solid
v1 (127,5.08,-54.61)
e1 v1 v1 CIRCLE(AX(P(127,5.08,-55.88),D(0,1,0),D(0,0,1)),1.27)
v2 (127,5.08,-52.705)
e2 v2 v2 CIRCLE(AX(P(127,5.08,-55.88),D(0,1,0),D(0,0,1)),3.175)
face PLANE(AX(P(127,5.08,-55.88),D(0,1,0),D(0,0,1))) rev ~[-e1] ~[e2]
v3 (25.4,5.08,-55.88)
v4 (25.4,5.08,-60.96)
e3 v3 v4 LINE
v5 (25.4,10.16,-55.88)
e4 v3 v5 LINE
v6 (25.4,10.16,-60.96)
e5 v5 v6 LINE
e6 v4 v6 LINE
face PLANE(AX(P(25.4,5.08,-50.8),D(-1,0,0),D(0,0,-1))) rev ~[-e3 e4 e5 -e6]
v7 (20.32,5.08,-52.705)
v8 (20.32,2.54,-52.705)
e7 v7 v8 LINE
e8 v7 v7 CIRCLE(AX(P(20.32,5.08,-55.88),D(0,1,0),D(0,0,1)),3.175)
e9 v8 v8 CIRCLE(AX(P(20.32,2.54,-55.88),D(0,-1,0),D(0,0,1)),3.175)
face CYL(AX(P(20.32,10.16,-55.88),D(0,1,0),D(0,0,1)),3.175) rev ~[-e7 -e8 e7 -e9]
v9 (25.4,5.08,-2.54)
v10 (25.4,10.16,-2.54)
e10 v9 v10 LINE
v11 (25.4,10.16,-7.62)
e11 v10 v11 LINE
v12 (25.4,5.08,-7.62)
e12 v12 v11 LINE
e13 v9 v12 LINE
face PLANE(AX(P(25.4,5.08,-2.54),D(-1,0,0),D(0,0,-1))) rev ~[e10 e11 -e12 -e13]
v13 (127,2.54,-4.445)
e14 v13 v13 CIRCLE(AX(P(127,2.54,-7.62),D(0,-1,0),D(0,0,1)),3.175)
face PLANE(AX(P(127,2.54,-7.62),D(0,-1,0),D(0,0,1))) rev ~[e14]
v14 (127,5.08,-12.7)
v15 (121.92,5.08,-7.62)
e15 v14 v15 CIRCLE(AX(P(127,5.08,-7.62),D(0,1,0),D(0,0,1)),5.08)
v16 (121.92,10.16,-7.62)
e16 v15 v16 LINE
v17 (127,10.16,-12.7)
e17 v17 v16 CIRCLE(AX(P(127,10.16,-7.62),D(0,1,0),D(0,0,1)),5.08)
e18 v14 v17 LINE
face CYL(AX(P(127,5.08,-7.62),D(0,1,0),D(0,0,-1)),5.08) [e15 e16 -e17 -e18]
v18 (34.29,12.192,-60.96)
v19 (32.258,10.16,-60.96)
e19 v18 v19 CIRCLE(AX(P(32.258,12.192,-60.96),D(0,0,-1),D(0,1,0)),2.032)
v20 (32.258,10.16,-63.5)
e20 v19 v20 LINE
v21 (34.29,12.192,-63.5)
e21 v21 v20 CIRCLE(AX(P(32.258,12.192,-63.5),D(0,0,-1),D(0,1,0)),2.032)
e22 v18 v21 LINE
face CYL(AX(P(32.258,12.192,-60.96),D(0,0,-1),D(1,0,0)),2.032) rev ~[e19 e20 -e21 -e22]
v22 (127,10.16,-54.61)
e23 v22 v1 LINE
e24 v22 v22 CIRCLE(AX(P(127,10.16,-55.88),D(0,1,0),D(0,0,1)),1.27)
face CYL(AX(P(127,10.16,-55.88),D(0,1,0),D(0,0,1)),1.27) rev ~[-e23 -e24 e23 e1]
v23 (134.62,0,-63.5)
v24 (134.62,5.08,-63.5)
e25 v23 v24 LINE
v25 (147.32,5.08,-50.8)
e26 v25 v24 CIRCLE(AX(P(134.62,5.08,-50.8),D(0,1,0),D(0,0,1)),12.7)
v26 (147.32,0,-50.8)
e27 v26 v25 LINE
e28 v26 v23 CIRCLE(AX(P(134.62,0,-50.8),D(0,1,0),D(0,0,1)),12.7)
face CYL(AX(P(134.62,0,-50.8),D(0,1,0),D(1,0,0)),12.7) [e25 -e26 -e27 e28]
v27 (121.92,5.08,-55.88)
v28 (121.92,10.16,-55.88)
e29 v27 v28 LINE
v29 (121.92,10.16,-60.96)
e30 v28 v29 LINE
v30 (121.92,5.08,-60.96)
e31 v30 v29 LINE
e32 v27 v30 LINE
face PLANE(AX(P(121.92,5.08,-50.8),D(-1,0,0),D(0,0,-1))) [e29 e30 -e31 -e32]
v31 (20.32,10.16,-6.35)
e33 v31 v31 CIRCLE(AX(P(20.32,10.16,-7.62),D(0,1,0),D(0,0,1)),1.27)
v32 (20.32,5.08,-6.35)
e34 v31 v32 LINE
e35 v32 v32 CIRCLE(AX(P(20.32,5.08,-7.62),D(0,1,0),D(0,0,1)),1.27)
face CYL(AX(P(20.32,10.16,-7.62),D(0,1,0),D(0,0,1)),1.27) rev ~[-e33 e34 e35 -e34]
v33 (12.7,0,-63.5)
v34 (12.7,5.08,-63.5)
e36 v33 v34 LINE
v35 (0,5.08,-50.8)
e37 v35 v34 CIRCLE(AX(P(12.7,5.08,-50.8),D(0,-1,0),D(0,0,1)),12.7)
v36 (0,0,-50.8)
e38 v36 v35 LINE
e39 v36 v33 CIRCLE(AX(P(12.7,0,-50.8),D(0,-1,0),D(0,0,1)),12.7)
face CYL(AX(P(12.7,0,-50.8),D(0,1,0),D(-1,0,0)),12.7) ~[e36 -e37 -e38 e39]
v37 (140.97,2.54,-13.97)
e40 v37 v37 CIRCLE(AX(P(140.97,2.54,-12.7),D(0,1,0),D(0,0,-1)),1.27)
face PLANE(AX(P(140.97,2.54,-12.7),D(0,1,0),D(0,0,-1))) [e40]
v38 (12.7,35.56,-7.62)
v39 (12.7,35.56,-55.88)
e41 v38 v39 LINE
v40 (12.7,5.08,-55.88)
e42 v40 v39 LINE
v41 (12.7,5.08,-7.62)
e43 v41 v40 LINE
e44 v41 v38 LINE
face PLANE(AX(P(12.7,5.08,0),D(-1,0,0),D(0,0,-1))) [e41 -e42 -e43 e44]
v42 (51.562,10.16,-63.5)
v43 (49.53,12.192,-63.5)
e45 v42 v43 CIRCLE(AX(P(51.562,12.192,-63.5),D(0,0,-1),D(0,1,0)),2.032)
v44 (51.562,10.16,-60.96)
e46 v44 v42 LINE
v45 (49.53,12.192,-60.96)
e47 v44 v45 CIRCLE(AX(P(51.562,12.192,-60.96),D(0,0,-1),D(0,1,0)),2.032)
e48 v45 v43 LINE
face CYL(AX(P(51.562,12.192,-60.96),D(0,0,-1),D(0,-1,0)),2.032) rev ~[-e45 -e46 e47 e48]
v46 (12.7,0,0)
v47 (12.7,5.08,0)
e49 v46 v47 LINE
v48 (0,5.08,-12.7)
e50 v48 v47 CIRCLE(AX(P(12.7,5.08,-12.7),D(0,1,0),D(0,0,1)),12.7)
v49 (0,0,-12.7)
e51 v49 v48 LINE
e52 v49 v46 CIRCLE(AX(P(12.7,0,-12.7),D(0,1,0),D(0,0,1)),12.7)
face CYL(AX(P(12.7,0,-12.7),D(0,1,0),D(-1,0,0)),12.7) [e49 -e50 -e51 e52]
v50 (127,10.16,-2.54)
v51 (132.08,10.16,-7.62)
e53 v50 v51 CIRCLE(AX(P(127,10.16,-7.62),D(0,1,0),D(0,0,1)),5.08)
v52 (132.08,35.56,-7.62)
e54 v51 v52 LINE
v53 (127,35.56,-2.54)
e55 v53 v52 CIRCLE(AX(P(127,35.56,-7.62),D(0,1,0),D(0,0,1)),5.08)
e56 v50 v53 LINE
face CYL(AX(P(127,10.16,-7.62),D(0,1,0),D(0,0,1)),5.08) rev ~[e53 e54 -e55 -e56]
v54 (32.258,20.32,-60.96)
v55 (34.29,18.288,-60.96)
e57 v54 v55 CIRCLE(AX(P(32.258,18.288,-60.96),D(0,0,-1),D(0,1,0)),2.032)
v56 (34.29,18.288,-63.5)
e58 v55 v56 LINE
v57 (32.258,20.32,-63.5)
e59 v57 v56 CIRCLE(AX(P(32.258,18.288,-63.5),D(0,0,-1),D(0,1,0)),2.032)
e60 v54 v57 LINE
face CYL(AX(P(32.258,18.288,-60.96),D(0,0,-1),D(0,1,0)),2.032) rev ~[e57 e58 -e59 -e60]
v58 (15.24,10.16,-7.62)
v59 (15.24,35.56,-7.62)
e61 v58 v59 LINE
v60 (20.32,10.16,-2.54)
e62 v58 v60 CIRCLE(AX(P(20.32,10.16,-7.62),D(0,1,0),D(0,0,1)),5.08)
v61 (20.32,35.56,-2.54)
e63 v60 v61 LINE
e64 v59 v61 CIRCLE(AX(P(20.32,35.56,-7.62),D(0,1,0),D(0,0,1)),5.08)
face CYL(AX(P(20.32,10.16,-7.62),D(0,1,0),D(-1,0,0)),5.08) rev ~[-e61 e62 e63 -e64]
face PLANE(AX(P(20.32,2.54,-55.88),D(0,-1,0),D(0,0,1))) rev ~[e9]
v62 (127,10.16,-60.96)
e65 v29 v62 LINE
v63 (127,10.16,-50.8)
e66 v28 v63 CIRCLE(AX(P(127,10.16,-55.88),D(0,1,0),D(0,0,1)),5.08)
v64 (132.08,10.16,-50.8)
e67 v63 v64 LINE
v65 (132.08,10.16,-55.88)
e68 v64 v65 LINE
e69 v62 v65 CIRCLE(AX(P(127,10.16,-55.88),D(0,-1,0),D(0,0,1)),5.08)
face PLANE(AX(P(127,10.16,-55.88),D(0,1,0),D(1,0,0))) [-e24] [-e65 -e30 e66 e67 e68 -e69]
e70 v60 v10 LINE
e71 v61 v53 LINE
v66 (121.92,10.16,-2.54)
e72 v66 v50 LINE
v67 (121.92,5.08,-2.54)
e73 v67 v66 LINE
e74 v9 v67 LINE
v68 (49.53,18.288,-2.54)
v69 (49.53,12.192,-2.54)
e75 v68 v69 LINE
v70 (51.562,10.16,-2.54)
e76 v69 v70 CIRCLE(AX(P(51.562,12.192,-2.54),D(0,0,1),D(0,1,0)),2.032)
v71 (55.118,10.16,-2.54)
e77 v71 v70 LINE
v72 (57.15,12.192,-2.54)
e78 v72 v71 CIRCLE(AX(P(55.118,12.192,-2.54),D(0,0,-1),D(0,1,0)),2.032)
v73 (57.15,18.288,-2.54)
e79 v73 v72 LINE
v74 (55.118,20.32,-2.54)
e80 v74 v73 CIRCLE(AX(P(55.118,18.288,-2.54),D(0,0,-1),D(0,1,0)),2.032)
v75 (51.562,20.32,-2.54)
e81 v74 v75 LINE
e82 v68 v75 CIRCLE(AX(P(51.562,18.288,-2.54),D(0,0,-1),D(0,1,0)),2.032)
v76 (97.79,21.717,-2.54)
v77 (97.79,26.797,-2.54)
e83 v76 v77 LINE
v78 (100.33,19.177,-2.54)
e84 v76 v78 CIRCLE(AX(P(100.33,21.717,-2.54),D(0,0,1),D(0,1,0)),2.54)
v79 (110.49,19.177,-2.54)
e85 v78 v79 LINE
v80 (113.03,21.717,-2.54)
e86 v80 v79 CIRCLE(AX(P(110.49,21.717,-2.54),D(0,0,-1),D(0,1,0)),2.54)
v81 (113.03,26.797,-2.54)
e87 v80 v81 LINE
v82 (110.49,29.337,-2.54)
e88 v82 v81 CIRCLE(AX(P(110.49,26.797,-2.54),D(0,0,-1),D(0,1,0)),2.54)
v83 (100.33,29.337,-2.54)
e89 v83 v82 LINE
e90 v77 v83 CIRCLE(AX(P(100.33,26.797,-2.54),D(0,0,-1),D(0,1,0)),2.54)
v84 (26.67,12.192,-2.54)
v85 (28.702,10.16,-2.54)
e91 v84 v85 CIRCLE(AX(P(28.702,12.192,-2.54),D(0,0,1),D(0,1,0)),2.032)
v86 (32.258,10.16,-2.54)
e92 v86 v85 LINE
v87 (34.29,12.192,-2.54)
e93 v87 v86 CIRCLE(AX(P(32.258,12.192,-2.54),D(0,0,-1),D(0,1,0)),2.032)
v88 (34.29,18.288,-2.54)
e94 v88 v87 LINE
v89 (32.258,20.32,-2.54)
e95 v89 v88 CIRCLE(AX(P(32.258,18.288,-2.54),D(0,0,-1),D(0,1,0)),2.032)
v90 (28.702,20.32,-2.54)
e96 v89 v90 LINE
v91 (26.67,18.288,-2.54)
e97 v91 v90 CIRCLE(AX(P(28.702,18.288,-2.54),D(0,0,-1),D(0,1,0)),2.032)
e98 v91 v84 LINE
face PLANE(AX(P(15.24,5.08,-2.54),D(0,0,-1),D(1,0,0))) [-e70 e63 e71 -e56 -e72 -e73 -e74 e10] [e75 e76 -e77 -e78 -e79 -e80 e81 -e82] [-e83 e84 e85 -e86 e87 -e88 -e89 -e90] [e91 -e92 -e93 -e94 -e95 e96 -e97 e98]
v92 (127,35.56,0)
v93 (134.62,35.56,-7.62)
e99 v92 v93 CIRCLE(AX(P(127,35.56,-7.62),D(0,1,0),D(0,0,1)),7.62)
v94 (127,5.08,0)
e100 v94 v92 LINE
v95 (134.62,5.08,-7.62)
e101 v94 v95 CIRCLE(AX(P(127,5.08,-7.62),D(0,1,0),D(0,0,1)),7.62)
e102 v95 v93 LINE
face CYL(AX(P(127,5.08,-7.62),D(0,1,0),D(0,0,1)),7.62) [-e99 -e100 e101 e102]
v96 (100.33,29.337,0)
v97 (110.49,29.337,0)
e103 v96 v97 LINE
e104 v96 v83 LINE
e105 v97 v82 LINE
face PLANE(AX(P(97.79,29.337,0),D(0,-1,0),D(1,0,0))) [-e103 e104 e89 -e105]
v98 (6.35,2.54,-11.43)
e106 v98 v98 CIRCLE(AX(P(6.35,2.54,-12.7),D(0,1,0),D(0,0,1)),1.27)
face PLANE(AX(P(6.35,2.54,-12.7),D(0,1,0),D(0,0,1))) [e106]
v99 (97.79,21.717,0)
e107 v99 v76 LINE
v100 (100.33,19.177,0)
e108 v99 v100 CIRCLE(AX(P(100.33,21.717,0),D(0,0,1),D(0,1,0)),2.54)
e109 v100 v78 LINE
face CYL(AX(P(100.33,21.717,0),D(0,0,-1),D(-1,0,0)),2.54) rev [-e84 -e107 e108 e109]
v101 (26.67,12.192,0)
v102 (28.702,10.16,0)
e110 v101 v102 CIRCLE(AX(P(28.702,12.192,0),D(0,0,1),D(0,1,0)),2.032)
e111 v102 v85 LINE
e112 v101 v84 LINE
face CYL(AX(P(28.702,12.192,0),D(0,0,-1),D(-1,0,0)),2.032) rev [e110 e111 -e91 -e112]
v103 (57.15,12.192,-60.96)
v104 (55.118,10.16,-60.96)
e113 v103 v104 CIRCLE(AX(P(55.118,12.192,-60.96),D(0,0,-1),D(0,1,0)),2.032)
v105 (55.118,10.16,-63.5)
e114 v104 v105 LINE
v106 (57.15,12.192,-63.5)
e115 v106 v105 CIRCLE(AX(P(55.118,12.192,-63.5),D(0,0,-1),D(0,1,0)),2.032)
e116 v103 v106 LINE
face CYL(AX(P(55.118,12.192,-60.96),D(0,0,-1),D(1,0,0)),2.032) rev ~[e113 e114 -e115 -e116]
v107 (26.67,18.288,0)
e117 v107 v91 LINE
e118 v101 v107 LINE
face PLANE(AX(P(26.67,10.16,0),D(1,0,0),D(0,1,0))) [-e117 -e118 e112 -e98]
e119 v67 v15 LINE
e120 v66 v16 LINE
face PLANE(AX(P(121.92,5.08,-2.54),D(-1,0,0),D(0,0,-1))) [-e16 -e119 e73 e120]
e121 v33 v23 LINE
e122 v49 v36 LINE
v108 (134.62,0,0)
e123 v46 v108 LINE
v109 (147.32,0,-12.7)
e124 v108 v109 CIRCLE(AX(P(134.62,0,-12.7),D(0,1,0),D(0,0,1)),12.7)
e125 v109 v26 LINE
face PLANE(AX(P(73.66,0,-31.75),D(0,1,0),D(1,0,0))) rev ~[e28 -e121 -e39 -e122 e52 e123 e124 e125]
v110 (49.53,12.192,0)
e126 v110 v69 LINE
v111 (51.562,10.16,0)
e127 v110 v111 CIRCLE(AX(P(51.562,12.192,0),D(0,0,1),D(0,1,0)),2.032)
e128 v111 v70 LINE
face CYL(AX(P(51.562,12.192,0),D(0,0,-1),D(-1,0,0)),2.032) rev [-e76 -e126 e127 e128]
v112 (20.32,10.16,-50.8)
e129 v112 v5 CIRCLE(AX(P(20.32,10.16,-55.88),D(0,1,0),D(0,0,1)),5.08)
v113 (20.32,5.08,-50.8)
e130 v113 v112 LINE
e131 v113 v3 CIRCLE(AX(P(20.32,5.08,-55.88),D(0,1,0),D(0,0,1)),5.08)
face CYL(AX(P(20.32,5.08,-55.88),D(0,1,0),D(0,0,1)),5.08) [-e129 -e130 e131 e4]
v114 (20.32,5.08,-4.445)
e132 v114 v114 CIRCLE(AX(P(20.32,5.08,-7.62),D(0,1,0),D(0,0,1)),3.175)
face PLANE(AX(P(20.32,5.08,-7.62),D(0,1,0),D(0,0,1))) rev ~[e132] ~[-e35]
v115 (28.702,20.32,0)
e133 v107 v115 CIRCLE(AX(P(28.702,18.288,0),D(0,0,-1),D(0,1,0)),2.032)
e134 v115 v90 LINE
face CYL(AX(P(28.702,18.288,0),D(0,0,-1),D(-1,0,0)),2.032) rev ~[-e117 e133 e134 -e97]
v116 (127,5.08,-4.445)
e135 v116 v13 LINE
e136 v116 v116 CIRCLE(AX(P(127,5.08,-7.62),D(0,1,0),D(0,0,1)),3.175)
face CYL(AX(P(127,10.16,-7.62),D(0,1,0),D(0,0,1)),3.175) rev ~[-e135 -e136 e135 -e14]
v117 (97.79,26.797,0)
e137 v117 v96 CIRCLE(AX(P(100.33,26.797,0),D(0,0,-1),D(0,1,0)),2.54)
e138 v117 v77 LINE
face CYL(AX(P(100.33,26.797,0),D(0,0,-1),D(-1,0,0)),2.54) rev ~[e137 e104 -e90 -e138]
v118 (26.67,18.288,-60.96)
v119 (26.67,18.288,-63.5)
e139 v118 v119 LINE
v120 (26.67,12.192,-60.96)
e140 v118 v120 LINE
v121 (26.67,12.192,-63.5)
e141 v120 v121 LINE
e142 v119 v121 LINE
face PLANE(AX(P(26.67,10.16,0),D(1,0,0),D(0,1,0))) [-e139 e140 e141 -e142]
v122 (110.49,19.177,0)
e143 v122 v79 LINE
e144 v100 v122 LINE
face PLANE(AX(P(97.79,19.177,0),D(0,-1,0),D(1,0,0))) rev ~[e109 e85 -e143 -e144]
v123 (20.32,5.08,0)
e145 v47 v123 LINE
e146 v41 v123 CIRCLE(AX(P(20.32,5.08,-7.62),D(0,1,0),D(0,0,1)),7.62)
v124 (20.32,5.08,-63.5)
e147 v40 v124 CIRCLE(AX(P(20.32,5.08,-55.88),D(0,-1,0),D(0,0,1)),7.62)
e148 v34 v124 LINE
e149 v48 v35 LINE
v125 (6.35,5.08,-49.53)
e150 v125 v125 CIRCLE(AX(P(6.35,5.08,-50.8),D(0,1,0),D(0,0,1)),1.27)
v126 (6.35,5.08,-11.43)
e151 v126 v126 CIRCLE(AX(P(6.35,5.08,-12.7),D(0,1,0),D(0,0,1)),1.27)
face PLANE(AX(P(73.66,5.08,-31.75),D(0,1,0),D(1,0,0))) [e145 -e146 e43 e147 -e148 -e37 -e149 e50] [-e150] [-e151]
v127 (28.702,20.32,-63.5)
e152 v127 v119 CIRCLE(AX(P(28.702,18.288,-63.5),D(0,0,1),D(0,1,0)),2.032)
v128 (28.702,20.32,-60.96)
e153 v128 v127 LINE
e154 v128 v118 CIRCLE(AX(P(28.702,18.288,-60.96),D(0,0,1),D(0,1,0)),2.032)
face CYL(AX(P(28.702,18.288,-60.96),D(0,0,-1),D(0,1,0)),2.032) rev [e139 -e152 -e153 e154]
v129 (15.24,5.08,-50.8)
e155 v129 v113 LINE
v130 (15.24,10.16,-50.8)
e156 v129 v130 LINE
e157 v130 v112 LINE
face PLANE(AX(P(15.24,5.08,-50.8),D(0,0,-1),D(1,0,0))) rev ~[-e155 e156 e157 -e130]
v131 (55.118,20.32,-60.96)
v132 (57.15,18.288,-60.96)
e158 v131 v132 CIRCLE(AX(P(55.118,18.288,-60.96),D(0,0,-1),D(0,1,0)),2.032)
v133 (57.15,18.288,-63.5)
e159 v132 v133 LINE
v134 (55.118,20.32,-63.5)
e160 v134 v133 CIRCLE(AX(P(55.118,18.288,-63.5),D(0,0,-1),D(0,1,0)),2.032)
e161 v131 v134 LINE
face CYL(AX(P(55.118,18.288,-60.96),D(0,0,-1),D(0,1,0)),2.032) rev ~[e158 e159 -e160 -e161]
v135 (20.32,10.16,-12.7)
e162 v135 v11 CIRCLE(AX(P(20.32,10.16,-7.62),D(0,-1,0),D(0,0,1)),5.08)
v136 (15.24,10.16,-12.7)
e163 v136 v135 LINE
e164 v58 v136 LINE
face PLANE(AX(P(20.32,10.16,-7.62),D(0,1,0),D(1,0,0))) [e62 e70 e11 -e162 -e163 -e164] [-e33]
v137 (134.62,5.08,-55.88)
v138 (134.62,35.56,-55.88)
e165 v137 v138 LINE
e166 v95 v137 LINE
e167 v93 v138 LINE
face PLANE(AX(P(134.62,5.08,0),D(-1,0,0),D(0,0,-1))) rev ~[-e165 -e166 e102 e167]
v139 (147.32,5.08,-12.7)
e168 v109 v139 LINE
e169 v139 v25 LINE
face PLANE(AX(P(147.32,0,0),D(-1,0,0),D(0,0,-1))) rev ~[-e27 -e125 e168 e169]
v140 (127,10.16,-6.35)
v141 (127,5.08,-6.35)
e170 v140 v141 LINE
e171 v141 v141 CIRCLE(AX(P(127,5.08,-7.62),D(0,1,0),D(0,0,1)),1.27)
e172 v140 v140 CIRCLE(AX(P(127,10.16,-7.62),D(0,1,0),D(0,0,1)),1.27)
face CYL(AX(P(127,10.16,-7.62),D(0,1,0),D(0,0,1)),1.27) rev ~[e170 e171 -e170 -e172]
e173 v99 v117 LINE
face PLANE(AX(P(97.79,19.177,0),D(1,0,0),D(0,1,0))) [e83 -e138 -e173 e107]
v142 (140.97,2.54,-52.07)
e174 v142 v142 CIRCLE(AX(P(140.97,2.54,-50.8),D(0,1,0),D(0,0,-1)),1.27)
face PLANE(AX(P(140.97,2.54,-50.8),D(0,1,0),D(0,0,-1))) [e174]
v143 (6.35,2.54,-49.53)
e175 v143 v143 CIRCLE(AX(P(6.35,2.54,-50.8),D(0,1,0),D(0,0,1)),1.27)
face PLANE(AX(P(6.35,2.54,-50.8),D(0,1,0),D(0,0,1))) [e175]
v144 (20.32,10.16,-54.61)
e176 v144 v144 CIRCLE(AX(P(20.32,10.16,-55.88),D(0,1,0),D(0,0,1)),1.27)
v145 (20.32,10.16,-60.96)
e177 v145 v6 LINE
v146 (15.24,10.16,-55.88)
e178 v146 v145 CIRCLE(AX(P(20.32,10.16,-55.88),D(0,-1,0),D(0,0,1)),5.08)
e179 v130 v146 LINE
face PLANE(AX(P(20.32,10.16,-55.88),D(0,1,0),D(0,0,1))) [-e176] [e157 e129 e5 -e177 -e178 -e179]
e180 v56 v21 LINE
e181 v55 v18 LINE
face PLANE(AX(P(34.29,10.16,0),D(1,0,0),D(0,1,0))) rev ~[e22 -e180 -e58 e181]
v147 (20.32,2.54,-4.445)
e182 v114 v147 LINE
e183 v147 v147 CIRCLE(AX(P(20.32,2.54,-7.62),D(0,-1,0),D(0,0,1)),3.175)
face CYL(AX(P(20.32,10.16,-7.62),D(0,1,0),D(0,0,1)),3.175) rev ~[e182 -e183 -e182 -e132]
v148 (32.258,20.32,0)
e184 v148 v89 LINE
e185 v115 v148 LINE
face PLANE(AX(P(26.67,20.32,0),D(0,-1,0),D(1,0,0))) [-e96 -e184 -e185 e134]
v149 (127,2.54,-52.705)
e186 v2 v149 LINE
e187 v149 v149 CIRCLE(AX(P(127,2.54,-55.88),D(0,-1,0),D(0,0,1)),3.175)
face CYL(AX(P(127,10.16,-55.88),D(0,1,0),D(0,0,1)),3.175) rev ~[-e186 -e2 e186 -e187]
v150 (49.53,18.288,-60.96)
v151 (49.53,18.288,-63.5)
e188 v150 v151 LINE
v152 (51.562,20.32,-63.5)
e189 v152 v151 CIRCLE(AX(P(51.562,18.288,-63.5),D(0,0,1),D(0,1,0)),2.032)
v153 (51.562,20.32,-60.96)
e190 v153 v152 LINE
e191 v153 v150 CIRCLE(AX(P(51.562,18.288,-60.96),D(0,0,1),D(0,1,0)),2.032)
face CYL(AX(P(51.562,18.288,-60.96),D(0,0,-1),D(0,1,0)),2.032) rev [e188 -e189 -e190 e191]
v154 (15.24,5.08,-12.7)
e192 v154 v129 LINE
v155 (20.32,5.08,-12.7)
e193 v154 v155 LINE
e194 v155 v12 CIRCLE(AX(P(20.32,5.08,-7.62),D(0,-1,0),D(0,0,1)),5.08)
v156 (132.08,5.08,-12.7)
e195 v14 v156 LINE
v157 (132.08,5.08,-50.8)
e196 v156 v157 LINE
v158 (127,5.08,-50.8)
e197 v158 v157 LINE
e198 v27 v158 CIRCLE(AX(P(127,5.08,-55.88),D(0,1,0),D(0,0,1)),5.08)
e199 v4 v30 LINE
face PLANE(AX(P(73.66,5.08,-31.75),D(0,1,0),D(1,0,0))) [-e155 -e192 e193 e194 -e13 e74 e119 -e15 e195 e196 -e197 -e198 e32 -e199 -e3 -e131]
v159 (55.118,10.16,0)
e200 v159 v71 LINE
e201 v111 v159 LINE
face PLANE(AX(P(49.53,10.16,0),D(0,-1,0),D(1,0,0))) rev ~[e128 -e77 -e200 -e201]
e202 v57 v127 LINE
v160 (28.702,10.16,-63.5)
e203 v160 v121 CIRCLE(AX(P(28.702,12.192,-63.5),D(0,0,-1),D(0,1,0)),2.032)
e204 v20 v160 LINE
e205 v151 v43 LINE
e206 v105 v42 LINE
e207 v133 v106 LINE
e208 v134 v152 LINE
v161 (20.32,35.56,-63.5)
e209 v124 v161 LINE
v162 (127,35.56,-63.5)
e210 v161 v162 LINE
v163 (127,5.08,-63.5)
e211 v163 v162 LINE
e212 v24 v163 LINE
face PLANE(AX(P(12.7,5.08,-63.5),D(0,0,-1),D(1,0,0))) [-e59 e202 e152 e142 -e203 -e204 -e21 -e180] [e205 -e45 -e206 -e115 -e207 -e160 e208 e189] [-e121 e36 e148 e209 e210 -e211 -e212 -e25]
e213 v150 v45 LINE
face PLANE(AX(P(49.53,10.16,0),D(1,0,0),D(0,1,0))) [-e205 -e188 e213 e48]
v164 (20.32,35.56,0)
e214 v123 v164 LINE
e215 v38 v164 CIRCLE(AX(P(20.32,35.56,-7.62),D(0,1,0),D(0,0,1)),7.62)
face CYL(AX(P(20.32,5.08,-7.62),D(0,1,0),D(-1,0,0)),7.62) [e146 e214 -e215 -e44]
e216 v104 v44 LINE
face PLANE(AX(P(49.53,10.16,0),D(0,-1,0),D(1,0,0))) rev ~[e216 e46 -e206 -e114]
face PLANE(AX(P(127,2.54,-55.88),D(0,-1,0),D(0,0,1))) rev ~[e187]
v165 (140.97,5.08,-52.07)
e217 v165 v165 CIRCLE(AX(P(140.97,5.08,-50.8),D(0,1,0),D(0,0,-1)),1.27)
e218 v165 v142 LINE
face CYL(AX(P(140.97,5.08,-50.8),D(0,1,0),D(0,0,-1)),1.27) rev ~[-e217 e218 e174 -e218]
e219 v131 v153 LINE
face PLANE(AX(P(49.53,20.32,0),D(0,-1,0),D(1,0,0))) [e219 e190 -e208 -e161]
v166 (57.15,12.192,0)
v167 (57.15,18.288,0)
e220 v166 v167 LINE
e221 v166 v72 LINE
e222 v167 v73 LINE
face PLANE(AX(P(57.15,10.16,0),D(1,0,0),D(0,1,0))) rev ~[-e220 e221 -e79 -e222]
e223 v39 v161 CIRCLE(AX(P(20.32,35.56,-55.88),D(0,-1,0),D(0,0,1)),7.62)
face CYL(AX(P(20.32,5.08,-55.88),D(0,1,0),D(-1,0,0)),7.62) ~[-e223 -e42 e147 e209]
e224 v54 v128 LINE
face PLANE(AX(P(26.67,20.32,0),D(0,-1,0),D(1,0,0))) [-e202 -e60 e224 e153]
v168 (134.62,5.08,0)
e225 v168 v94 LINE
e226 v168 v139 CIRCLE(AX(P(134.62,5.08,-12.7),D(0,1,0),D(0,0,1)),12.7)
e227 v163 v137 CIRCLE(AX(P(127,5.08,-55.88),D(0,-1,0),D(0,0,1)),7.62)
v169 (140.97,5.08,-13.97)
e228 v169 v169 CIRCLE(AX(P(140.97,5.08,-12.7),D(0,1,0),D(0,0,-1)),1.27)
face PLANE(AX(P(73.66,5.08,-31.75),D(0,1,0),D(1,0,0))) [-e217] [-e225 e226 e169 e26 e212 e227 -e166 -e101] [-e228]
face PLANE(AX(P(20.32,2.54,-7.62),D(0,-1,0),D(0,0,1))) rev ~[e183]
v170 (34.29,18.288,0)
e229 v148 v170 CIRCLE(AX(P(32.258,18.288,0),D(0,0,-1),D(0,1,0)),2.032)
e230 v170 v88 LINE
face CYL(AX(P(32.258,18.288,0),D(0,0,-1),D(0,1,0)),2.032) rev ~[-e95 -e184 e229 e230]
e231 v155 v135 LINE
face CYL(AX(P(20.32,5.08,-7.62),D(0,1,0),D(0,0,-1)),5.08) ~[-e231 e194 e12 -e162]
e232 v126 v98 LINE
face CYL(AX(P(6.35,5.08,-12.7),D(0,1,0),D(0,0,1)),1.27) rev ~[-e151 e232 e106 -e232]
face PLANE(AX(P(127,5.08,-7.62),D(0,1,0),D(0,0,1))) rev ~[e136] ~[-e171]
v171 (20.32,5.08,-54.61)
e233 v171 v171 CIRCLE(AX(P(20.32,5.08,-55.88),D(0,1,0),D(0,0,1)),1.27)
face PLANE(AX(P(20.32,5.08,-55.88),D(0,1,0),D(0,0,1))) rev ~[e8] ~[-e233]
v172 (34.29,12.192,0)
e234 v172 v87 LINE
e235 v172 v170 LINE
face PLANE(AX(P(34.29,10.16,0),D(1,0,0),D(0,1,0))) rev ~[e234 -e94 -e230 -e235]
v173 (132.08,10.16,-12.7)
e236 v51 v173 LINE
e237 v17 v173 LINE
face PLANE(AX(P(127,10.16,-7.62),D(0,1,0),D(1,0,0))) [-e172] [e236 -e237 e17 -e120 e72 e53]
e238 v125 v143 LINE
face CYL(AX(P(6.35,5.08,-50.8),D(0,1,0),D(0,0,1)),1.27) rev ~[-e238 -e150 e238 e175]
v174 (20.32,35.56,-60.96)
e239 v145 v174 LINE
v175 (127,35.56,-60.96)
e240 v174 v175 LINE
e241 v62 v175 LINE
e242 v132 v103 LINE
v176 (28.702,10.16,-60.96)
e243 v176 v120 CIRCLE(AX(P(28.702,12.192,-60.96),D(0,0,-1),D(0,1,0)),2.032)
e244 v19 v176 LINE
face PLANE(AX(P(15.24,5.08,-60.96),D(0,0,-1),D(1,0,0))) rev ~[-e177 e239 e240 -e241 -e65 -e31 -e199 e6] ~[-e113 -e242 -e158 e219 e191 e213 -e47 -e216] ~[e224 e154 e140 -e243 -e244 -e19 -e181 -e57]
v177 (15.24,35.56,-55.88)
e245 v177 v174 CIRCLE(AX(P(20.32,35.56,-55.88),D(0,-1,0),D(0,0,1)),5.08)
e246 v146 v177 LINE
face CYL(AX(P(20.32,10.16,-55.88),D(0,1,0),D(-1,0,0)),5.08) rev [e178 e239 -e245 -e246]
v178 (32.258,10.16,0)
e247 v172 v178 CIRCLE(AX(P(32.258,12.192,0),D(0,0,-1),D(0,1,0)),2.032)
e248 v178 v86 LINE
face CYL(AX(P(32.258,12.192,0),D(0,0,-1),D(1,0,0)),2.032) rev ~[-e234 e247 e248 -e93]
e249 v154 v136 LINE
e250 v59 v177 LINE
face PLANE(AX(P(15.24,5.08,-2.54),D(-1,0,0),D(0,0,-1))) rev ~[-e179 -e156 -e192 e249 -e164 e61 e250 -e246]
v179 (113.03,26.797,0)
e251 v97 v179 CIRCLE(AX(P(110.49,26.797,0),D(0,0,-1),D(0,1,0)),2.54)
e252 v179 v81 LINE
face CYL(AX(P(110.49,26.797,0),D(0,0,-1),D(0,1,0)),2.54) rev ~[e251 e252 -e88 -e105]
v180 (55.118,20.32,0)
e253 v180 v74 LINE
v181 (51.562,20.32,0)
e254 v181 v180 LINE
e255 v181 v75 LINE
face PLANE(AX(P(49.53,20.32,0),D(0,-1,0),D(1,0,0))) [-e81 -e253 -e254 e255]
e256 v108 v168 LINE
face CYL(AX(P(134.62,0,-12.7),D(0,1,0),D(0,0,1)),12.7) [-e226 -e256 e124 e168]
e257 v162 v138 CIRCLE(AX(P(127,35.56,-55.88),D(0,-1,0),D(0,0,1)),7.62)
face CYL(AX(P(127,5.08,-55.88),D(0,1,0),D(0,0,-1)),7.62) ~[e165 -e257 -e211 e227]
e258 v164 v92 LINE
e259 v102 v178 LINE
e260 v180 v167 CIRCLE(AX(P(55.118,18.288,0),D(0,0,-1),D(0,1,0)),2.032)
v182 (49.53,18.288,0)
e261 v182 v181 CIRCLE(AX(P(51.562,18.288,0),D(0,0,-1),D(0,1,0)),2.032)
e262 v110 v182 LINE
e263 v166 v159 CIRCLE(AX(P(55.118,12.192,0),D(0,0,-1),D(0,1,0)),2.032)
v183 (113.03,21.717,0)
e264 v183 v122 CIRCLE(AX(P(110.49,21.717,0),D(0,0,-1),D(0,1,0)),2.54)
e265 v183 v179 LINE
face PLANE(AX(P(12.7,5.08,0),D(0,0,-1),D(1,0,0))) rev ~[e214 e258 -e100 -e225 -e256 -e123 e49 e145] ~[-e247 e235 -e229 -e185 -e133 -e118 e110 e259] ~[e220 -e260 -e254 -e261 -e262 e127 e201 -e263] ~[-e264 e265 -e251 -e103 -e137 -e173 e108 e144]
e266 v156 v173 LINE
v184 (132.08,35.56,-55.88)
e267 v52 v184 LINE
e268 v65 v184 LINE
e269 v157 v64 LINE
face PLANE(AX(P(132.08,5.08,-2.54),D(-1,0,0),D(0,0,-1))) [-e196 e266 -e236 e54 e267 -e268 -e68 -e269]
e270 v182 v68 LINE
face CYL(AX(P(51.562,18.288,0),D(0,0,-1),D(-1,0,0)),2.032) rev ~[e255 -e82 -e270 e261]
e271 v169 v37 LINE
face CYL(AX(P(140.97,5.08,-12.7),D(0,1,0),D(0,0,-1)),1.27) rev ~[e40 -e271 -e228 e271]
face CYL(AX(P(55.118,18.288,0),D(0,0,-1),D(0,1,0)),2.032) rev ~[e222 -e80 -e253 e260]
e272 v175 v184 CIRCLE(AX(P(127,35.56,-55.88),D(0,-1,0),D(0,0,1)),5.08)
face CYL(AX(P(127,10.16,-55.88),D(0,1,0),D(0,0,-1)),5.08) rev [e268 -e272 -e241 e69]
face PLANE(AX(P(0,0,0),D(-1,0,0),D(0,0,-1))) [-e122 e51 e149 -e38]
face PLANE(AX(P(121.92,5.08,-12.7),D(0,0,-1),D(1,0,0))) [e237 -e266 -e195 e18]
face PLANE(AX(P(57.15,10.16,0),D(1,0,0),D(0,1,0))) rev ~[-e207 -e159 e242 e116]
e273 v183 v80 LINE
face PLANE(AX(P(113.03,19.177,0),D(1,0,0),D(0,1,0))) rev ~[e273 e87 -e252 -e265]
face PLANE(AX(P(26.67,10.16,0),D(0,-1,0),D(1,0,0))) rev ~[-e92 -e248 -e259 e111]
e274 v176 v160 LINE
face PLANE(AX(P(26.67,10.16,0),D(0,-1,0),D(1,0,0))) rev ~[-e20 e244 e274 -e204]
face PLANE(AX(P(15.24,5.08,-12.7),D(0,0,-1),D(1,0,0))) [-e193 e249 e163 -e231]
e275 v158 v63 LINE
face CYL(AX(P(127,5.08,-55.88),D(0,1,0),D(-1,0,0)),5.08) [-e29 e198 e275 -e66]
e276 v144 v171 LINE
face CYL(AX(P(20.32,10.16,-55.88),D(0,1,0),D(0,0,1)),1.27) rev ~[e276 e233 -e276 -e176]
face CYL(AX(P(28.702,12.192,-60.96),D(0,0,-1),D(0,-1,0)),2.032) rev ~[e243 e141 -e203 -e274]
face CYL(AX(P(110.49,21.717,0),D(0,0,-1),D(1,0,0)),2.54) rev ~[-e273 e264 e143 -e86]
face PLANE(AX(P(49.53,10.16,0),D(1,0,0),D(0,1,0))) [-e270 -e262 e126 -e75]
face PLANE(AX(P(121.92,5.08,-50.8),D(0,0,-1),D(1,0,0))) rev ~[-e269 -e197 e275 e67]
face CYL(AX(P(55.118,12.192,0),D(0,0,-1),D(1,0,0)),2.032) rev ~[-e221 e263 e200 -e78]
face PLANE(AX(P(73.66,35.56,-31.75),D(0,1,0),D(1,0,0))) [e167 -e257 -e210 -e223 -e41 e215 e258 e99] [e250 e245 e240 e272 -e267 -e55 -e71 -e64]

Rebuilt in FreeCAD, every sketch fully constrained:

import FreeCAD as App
import Part
import Sketcher

V = App.Vector
Q = App.Units.Quantity


def edges_at(feature, points):
    """Names of the edges that pass closest to the given points."""
    edges = feature.Shape.Edges
    near = lambda p: min(range(len(edges)), key=lambda i: edges[i].distToShape(Part.Vertex(*p))[0])
    return sorted({f"Edge{near(p) + 1}" for p in points})

doc = App.newDocument("Part")
body = doc.addObject("PartDesign::Body", "Body")

sketch1 = body.newObject("Sketcher::SketchObject", "Sketch")
sketch1.AttachmentSupport = (doc.getObject("XZ_Plane"), [""])
sketch1.MapMode = "FlatFace"
sketch1.addGeometry(Part.LineSegment(V(0, -63.5, 0), V(0, 0, 0)), False)
sketch1.addGeometry(Part.LineSegment(V(0, 0, 0), V(147.32, 0, 0)), False)
sketch1.addGeometry(Part.LineSegment(V(147.32, 0, 0), V(147.32, -63.5, 0)), False)
sketch1.addGeometry(Part.LineSegment(V(147.32, -63.5, 0), V(0, -63.5, 0)), False)
sketch1.addConstraint(Sketcher.Constraint("Coincident", 0, 2, 1, 1))
sketch1.addConstraint(Sketcher.Constraint("Coincident", 1, 2, 2, 1))
sketch1.addConstraint(Sketcher.Constraint("Coincident", 2, 2, 3, 1))
sketch1.addConstraint(Sketcher.Constraint("Coincident", 3, 2, 0, 1))
sketch1.addConstraint(Sketcher.Constraint("Vertical", 0))
sketch1.addConstraint(Sketcher.Constraint("Horizontal", 1))
sketch1.addConstraint(Sketcher.Constraint("Vertical", 2))
sketch1.addConstraint(Sketcher.Constraint("Horizontal", 3))
sketch1.addConstraint(Sketcher.Constraint("Coincident", 0, 2, -1, 1))
sketch1.addConstraint(Sketcher.Constraint("DistanceX", 1, 1, 1, 2, Q("5.8 in")))
sketch1.addConstraint(Sketcher.Constraint("DistanceY", 0, 1, 0, 2, Q("2.5 in")))
pad1 = body.newObject("PartDesign::Pad", "Pad")
pad1.Profile = sketch1
pad1.Length = Q("0.2 in")
pad1.Reversed = True
doc.recompute()

fillet = body.newObject("PartDesign::Fillet", "Fillet")
fillet.Base = (pad1, edges_at(pad1, [
    (0, 2.54, -63.5),
    (147.32, 2.54, -63.5),
    (147.32, 2.54, 0),
    (0, 2.54, 0),
]))
fillet.Radius = Q("0.5 in")

sketch2 = body.newObject("Sketcher::SketchObject", "Sketch001")
sketch2.AttachmentSupport = (doc.getObject("XZ_Plane"), [""])
sketch2.MapMode = "FlatFace"
sketch2.AttachmentOffset = App.Placement(V(0, 0, -0.2 * 25.4), App.Rotation())
sketch2.addGeometry(Part.LineSegment(V(12.7, -63.5, 0), V(12.7, 0, 0)), False)
sketch2.addGeometry(Part.LineSegment(V(12.7, 0, 0), V(134.62, 0, 0)), False)
sketch2.addGeometry(Part.LineSegment(V(134.62, 0, 0), V(134.62, -63.5, 0)), False)
sketch2.addGeometry(Part.LineSegment(V(134.62, -63.5, 0), V(12.7, -63.5, 0)), False)
sketch2.addGeometry(Part.LineSegment(V(132.08, -2.54, 0), V(15.24, -2.54, 0)), False)
sketch2.addGeometry(Part.LineSegment(V(15.24, -2.54, 0), V(15.24, -60.96, 0)), False)
sketch2.addGeometry(Part.LineSegment(V(15.24, -60.96, 0), V(132.08, -60.96, 0)), False)
sketch2.addGeometry(Part.LineSegment(V(132.08, -60.96, 0), V(132.08, -2.54, 0)), False)
sketch2.addConstraint(Sketcher.Constraint("Coincident", 0, 2, 1, 1))
sketch2.addConstraint(Sketcher.Constraint("Coincident", 1, 2, 2, 1))
sketch2.addConstraint(Sketcher.Constraint("Coincident", 2, 2, 3, 1))
sketch2.addConstraint(Sketcher.Constraint("Coincident", 3, 2, 0, 1))
sketch2.addConstraint(Sketcher.Constraint("Coincident", 4, 2, 5, 1))
sketch2.addConstraint(Sketcher.Constraint("Coincident", 5, 2, 6, 1))
sketch2.addConstraint(Sketcher.Constraint("Coincident", 6, 2, 7, 1))
sketch2.addConstraint(Sketcher.Constraint("Coincident", 7, 2, 4, 1))
sketch2.addConstraint(Sketcher.Constraint("Vertical", 0))
sketch2.addConstraint(Sketcher.Constraint("Horizontal", 1))
sketch2.addConstraint(Sketcher.Constraint("Vertical", 2))
sketch2.addConstraint(Sketcher.Constraint("Horizontal", 3))
sketch2.addConstraint(Sketcher.Constraint("Horizontal", 4))
sketch2.addConstraint(Sketcher.Constraint("Vertical", 5))
sketch2.addConstraint(Sketcher.Constraint("Horizontal", 6))
sketch2.addConstraint(Sketcher.Constraint("Vertical", 7))
sketch2.addConstraint(Sketcher.Constraint("PointOnObject", 0, 2, -1))
sketch2.addConstraint(Sketcher.Constraint("DistanceX", 1, 1, 1, 2, Q("4.8 in")))
sketch2.addConstraint(Sketcher.Constraint("DistanceX", 4, 2, 4, 1, Q("4.6 in")))
sketch2.addConstraint(Sketcher.Constraint("DistanceY", 0, 1, 0, 2, Q("2.5 in")))
sketch2.addConstraint(Sketcher.Constraint("DistanceY", 5, 2, 5, 1, Q("2.3 in")))
sketch2.addConstraint(Sketcher.Constraint("DistanceX", -1, 1, 0, 2, Q("0.5 in")))
sketch2.addConstraint(Sketcher.Constraint("DistanceX", -1, 1, 4, 2, Q("0.6 in")))
sketch2.addConstraint(Sketcher.Constraint("DistanceY", 4, 2, -1, 1, Q("0.1 in")))
pad2 = body.newObject("PartDesign::Pad", "Pad001")
pad2.Profile = sketch2
pad2.Length = Q("1.2 in")
pad2.Reversed = True

sketch3 = body.newObject("Sketcher::SketchObject", "Sketch002")
sketch3.AttachmentSupport = (doc.getObject("XZ_Plane"), [""])
sketch3.MapMode = "FlatFace"
sketch3.AttachmentOffset = App.Placement(V(0, 0, -0.2 * 25.4), App.Rotation())
sketch3.addGeometry(Part.LineSegment(V(15.24, -60.96, 0), V(15.24, -50.8, 0)), False)
sketch3.addGeometry(Part.LineSegment(V(15.24, -50.8, 0), V(25.4, -50.8, 0)), False)
sketch3.addGeometry(Part.LineSegment(V(25.4, -50.8, 0), V(25.4, -60.96, 0)), False)
sketch3.addGeometry(Part.LineSegment(V(25.4, -60.96, 0), V(15.24, -60.96, 0)), False)
sketch3.addGeometry(Part.LineSegment(V(121.92, -60.96, 0), V(121.92, -50.8, 0)), False)
sketch3.addGeometry(Part.LineSegment(V(121.92, -50.8, 0), V(132.08, -50.8, 0)), False)
sketch3.addGeometry(Part.LineSegment(V(132.08, -50.8, 0), V(132.08, -60.96, 0)), False)
sketch3.addGeometry(Part.LineSegment(V(132.08, -60.96, 0), V(121.92, -60.96, 0)), False)
sketch3.addGeometry(Part.LineSegment(V(121.92, -12.7, 0), V(121.92, -2.54, 0)), False)
sketch3.addGeometry(Part.LineSegment(V(121.92, -2.54, 0), V(132.08, -2.54, 0)), False)
sketch3.addGeometry(Part.LineSegment(V(132.08, -2.54, 0), V(132.08, -12.7, 0)), False)
sketch3.addGeometry(Part.LineSegment(V(132.08, -12.7, 0), V(121.92, -12.7, 0)), False)
sketch3.addGeometry(Part.LineSegment(V(15.24, -12.7, 0), V(15.24, -2.54, 0)), False)
sketch3.addGeometry(Part.LineSegment(V(15.24, -2.54, 0), V(25.4, -2.54, 0)), False)
sketch3.addGeometry(Part.LineSegment(V(25.4, -2.54, 0), V(25.4, -12.7, 0)), False)
sketch3.addGeometry(Part.LineSegment(V(25.4, -12.7, 0), V(15.24, -12.7, 0)), False)
sketch3.addConstraint(Sketcher.Constraint("Coincident", 0, 2, 1, 1))
sketch3.addConstraint(Sketcher.Constraint("Coincident", 1, 2, 2, 1))
sketch3.addConstraint(Sketcher.Constraint("Coincident", 2, 2, 3, 1))
sketch3.addConstraint(Sketcher.Constraint("Coincident", 3, 2, 0, 1))
sketch3.addConstraint(Sketcher.Constraint("Coincident", 4, 2, 5, 1))
sketch3.addConstraint(Sketcher.Constraint("Coincident", 5, 2, 6, 1))
sketch3.addConstraint(Sketcher.Constraint("Coincident", 6, 2, 7, 1))
sketch3.addConstraint(Sketcher.Constraint("Coincident", 7, 2, 4, 1))
sketch3.addConstraint(Sketcher.Constraint("Coincident", 8, 2, 9, 1))
sketch3.addConstraint(Sketcher.Constraint("Coincident", 9, 2, 10, 1))
sketch3.addConstraint(Sketcher.Constraint("Coincident", 10, 2, 11, 1))
sketch3.addConstraint(Sketcher.Constraint("Coincident", 11, 2, 8, 1))
sketch3.addConstraint(Sketcher.Constraint("Coincident", 12, 2, 13, 1))
sketch3.addConstraint(Sketcher.Constraint("Coincident", 13, 2, 14, 1))
sketch3.addConstraint(Sketcher.Constraint("Coincident", 14, 2, 15, 1))
sketch3.addConstraint(Sketcher.Constraint("Coincident", 15, 2, 12, 1))
sketch3.addConstraint(Sketcher.Constraint("Vertical", 0))
sketch3.addConstraint(Sketcher.Constraint("Horizontal", 1))
sketch3.addConstraint(Sketcher.Constraint("Vertical", 2))
sketch3.addConstraint(Sketcher.Constraint("Horizontal", 3))
sketch3.addConstraint(Sketcher.Constraint("Vertical", 4))
sketch3.addConstraint(Sketcher.Constraint("Horizontal", 5))
sketch3.addConstraint(Sketcher.Constraint("Vertical", 6))
sketch3.addConstraint(Sketcher.Constraint("Horizontal", 7))
sketch3.addConstraint(Sketcher.Constraint("Vertical", 8))
sketch3.addConstraint(Sketcher.Constraint("Horizontal", 9))
sketch3.addConstraint(Sketcher.Constraint("Vertical", 10))
sketch3.addConstraint(Sketcher.Constraint("Horizontal", 11))
sketch3.addConstraint(Sketcher.Constraint("Vertical", 12))
sketch3.addConstraint(Sketcher.Constraint("Horizontal", 13))
sketch3.addConstraint(Sketcher.Constraint("Vertical", 14))
sketch3.addConstraint(Sketcher.Constraint("Horizontal", 15))
sketch3.addConstraint(Sketcher.Constraint("Horizontal", 1, 2, 4, 2))
sketch3.addConstraint(Sketcher.Constraint("Horizontal", 3, 2, 6, 2))
sketch3.addConstraint(Sketcher.Constraint("Horizontal", 9, 2, 12, 2))
sketch3.addConstraint(Sketcher.Constraint("Horizontal", 11, 2, 14, 2))
sketch3.addConstraint(Sketcher.Constraint("Vertical", 7, 2, 8, 2))
sketch3.addConstraint(Sketcher.Constraint("Vertical", 6, 2, 9, 2))
sketch3.addConstraint(Sketcher.Constraint("Vertical", 3, 2, 12, 2))
sketch3.addConstraint(Sketcher.Constraint("Vertical", 2, 2, 13, 2))
sketch3.addConstraint(Sketcher.Constraint("Equal", 3, 5))
sketch3.addConstraint(Sketcher.Constraint("Equal", 15, 0))
sketch3.addConstraint(Sketcher.Constraint("Equal", 6, 8))
sketch3.addConstraint(Sketcher.Constraint("DistanceX", 1, 1, 1, 2, Q("0.4 in")))
sketch3.addConstraint(Sketcher.Constraint("DistanceY", 0, 2, -1, 1, Q("2 in")))
sketch3.addConstraint(Sketcher.Constraint("DistanceX", -1, 1, 1, 2, Q("1 in")))
sketch3.addConstraint(Sketcher.Constraint("DistanceX", -1, 1, 4, 2, Q("4.8 in")))
sketch3.addConstraint(Sketcher.Constraint("DistanceY", 8, 2, -1, 1, Q("0.1 in")))
pad3 = body.newObject("PartDesign::Pad", "Pad002")
pad3.Profile = sketch3
pad3.Length = Q("0.2 in")
pad3.Reversed = True
doc.recompute()

fillet2 = body.newObject("PartDesign::Fillet", "Fillet001")
fillet2.Base = (pad3, edges_at(pad3, [
    (25.4, 7.62, -12.7),
    (25.4, 7.62, -50.8),
    (121.92, 7.62, -50.8),
    (121.92, 7.62, -12.7),
]))
fillet2.Radius = Q("0.2 in")

sketch4 = body.newObject("Sketcher::SketchObject", "Sketch003")
sketch4.AttachmentSupport = (doc.getObject("XZ_Plane"), [""])
sketch4.MapMode = "FlatFace"
sketch4.AttachmentOffset = App.Placement(V(0, 0, -0.4 * 25.4), App.Rotation())
sketch4.addGeometry(Part.Circle(V(20.32, -55.88, 0), V(0, 0, 1), 3.175), False)
sketch4.addGeometry(Part.Circle(V(127, -55.88, 0), V(0, 0, 1), 3.175), False)
sketch4.addGeometry(Part.Circle(V(20.32, -7.62, 0), V(0, 0, 1), 3.175), False)
sketch4.addGeometry(Part.Circle(V(127, -7.62, 0), V(0, 0, 1), 3.175), False)
sketch4.addConstraint(Sketcher.Constraint("Equal", 0, 1))
sketch4.addConstraint(Sketcher.Constraint("Equal", 1, 2))
sketch4.addConstraint(Sketcher.Constraint("Equal", 2, 3))
sketch4.addConstraint(Sketcher.Constraint("Horizontal", 0, 3, 1, 3))
sketch4.addConstraint(Sketcher.Constraint("Horizontal", 2, 3, 3, 3))
sketch4.addConstraint(Sketcher.Constraint("Vertical", 0, 3, 2, 3))
sketch4.addConstraint(Sketcher.Constraint("Vertical", 1, 3, 3, 3))
sketch4.addConstraint(Sketcher.Constraint("Diameter", 0, Q("0.25 in")))
sketch4.addConstraint(Sketcher.Constraint("DistanceX", -1, 1, 1, 3, Q("5 in")))
sketch4.addConstraint(Sketcher.Constraint("DistanceX", -1, 1, 0, 3, Q("0.8 in")))
sketch4.addConstraint(Sketcher.Constraint("DistanceY", 0, 3, -1, 1, Q("2.2 in")))
sketch4.addConstraint(Sketcher.Constraint("DistanceY", 2, 3, -1, 1, Q("0.3 in")))
pocket1 = body.newObject("PartDesign::Pocket", "Pocket")
pocket1.Profile = sketch4
pocket1.Type = "ThroughAll"
pocket1.Reversed = True
doc.recompute()

fillet3 = body.newObject("PartDesign::Fillet", "Fillet002")
fillet3.Base = (pocket1, edges_at(pocket1, [
    (15.24, 22.86, -2.54),
    (132.08, 22.86, -2.54),
    (132.08, 22.86, -60.96),
    (15.24, 22.86, -60.96),
]))
fillet3.Radius = Q("0.2 in")
doc.recompute()

fillet4 = body.newObject("PartDesign::Fillet", "Fillet003")
fillet4.Base = (fillet3, edges_at(fillet3, [
    (12.7, 20.32, -63.5),
    (12.7, 20.32, 0),
    (134.62, 20.32, 0),
    (134.62, 20.32, -63.5),
]))
fillet4.Radius = Q("0.3 in")

sketch5 = body.newObject("Sketcher::SketchObject", "Sketch004")
sketch5.AttachmentSupport = (doc.getObject("XY_Plane"), [""])
sketch5.MapMode = "FlatFace"
sketch5.addGeometry(Part.LineSegment(V(97.79, 29.337, 0), V(97.79, 19.177, 0)), False)
sketch5.addGeometry(Part.LineSegment(V(97.79, 19.177, 0), V(113.03, 19.177, 0)), False)
sketch5.addGeometry(Part.LineSegment(V(113.03, 19.177, 0), V(113.03, 29.337, 0)), False)
sketch5.addGeometry(Part.LineSegment(V(113.03, 29.337, 0), V(97.79, 29.337, 0)), False)
sketch5.addConstraint(Sketcher.Constraint("Coincident", 0, 2, 1, 1))
sketch5.addConstraint(Sketcher.Constraint("Coincident", 1, 2, 2, 1))
sketch5.addConstraint(Sketcher.Constraint("Coincident", 2, 2, 3, 1))
sketch5.addConstraint(Sketcher.Constraint("Coincident", 3, 2, 0, 1))
sketch5.addConstraint(Sketcher.Constraint("Vertical", 0))
sketch5.addConstraint(Sketcher.Constraint("Horizontal", 1))
sketch5.addConstraint(Sketcher.Constraint("Vertical", 2))
sketch5.addConstraint(Sketcher.Constraint("Horizontal", 3))
sketch5.addConstraint(Sketcher.Constraint("DistanceX", 1, 1, 1, 2, Q("0.6 in")))
sketch5.addConstraint(Sketcher.Constraint("DistanceY", 0, 2, 0, 1, Q("0.4 in")))
sketch5.addConstraint(Sketcher.Constraint("DistanceX", -1, 1, 0, 2, Q("3.85 in")))
sketch5.addConstraint(Sketcher.Constraint("DistanceY", -1, 1, 0, 2, Q("0.755 in")))
pocket2 = body.newObject("PartDesign::Pocket", "Pocket001")
pocket2.Profile = sketch5
pocket2.Type = "UpToFirst"
doc.recompute()

fillet5 = body.newObject("PartDesign::Fillet", "Fillet004")
fillet5.Base = (pocket2, edges_at(pocket2, [
    (97.79, 19.177, -1.27),
    (97.79, 29.337, -1.27),
    (113.03, 29.337, -1.27),
    (113.03, 19.177, -1.27),
]))
fillet5.Radius = Q("0.1 in")

sketch6 = body.newObject("Sketcher::SketchObject", "Sketch005")
sketch6.AttachmentSupport = (doc.getObject("XY_Plane"), [""])
sketch6.MapMode = "FlatFace"
sketch6.addGeometry(Part.LineSegment(V(26.67, 20.32, 0), V(26.67, 10.16, 0)), False)
sketch6.addGeometry(Part.LineSegment(V(26.67, 10.16, 0), V(34.29, 10.16, 0)), False)
sketch6.addGeometry(Part.LineSegment(V(34.29, 10.16, 0), V(34.29, 20.32, 0)), False)
sketch6.addGeometry(Part.LineSegment(V(34.29, 20.32, 0), V(26.67, 20.32, 0)), False)
sketch6.addGeometry(Part.LineSegment(V(49.53, 20.32, 0), V(49.53, 10.16, 0)), False)
sketch6.addGeometry(Part.LineSegment(V(49.53, 10.16, 0), V(57.15, 10.16, 0)), False)
sketch6.addGeometry(Part.LineSegment(V(57.15, 10.16, 0), V(57.15, 20.32, 0)), False)
sketch6.addGeometry(Part.LineSegment(V(57.15, 20.32, 0), V(49.53, 20.32, 0)), False)
sketch6.addConstraint(Sketcher.Constraint("Coincident", 0, 2, 1, 1))
sketch6.addConstraint(Sketcher.Constraint("Coincident", 1, 2, 2, 1))
sketch6.addConstraint(Sketcher.Constraint("Coincident", 2, 2, 3, 1))
sketch6.addConstraint(Sketcher.Constraint("Coincident", 3, 2, 0, 1))
sketch6.addConstraint(Sketcher.Constraint("Coincident", 4, 2, 5, 1))
sketch6.addConstraint(Sketcher.Constraint("Coincident", 5, 2, 6, 1))
sketch6.addConstraint(Sketcher.Constraint("Coincident", 6, 2, 7, 1))
sketch6.addConstraint(Sketcher.Constraint("Coincident", 7, 2, 4, 1))
sketch6.addConstraint(Sketcher.Constraint("Vertical", 0))
sketch6.addConstraint(Sketcher.Constraint("Horizontal", 1))
sketch6.addConstraint(Sketcher.Constraint("Vertical", 2))
sketch6.addConstraint(Sketcher.Constraint("Horizontal", 3))
sketch6.addConstraint(Sketcher.Constraint("Vertical", 4))
sketch6.addConstraint(Sketcher.Constraint("Horizontal", 5))
sketch6.addConstraint(Sketcher.Constraint("Vertical", 6))
sketch6.addConstraint(Sketcher.Constraint("Horizontal", 7))
sketch6.addConstraint(Sketcher.Constraint("Horizontal", 1, 2, 4, 2))
sketch6.addConstraint(Sketcher.Constraint("Horizontal", 3, 2, 6, 2))
sketch6.addConstraint(Sketcher.Constraint("Equal", 3, 5))
sketch6.addConstraint(Sketcher.Constraint("DistanceX", 1, 1, 1, 2, Q("0.3 in")))
sketch6.addConstraint(Sketcher.Constraint("DistanceY", 0, 2, 0, 1, Q("0.4 in")))
sketch6.addConstraint(Sketcher.Constraint("DistanceY", -1, 1, 0, 2, Q("0.4 in")))
sketch6.addConstraint(Sketcher.Constraint("DistanceX", 1, 2, 4, 2, Q("0.6 in")))
sketch6.addConstraint(Sketcher.Constraint("DistanceX", -1, 1, 0, 2, Q("1.05 in")))
pocket3 = body.newObject("PartDesign::Pocket", "Pocket002")
pocket3.Profile = sketch6
pocket3.Type = "ThroughAll"
doc.recompute()

fillet6 = body.newObject("PartDesign::Fillet", "Fillet005")
fillet6.Base = (pocket3, edges_at(pocket3, [
    (26.67, 10.16, -1.27),
    (26.67, 20.32, -1.27),
    (34.29, 20.32, -1.27),
    (34.29, 10.16, -1.27),
    (26.67, 10.16, -62.23),
    (26.67, 20.32, -62.23),
    (34.29, 20.32, -62.23),
    (34.29, 10.16, -62.23),
    (49.53, 10.16, -1.27),
    (49.53, 20.32, -1.27),
    (57.15, 20.32, -1.27),
    (57.15, 10.16, -1.27),
    (49.53, 10.16, -62.23),
    (49.53, 20.32, -62.23),
    (57.15, 20.32, -62.23),
    (57.15, 10.16, -62.23),
]))
fillet6.Radius = Q("0.08 in")

sketch7 = body.newObject("Sketcher::SketchObject", "Sketch006")
sketch7.AttachmentSupport = (doc.getObject("XZ_Plane"), [""])
sketch7.MapMode = "FlatFace"
sketch7.AttachmentOffset = App.Placement(V(0, 0, -0.4 * 25.4), App.Rotation())
sketch7.addGeometry(Part.Circle(V(20.32, -55.88, 0), V(0, 0, 1), 3.175), False)
sketch7.addGeometry(Part.Circle(V(20.32, -55.88, 0), V(0, 0, 1), 1.27), False)
sketch7.addGeometry(Part.Circle(V(127, -55.88, 0), V(0, 0, 1), 3.175), False)
sketch7.addGeometry(Part.Circle(V(127, -55.88, 0), V(0, 0, 1), 1.27), False)
sketch7.addGeometry(Part.Circle(V(20.32, -7.62, 0), V(0, 0, 1), 3.175), False)
sketch7.addGeometry(Part.Circle(V(20.32, -7.62, 0), V(0, 0, 1), 1.27), False)
sketch7.addGeometry(Part.Circle(V(127, -7.62, 0), V(0, 0, 1), 3.175), False)
sketch7.addGeometry(Part.Circle(V(127, -7.62, 0), V(0, 0, 1), 1.27), False)
sketch7.addConstraint(Sketcher.Constraint("Coincident", 1, 3, 0, 3))
sketch7.addConstraint(Sketcher.Constraint("Coincident", 3, 3, 2, 3))
sketch7.addConstraint(Sketcher.Constraint("Coincident", 5, 3, 4, 3))
sketch7.addConstraint(Sketcher.Constraint("Coincident", 7, 3, 6, 3))
sketch7.addConstraint(Sketcher.Constraint("Equal", 0, 2))
sketch7.addConstraint(Sketcher.Constraint("Equal", 1, 3))
sketch7.addConstraint(Sketcher.Constraint("Equal", 2, 4))
sketch7.addConstraint(Sketcher.Constraint("Equal", 3, 5))
sketch7.addConstraint(Sketcher.Constraint("Equal", 4, 6))
sketch7.addConstraint(Sketcher.Constraint("Equal", 5, 7))
sketch7.addConstraint(Sketcher.Constraint("Horizontal", 1, 3, 2, 3))
sketch7.addConstraint(Sketcher.Constraint("Horizontal", 5, 3, 6, 3))
sketch7.addConstraint(Sketcher.Constraint("Vertical", 1, 3, 4, 3))
sketch7.addConstraint(Sketcher.Constraint("Vertical", 3, 3, 6, 3))
sketch7.addConstraint(Sketcher.Constraint("Diameter", 1, Q("0.1 in")))
sketch7.addConstraint(Sketcher.Constraint("Diameter", 0, Q("0.25 in")))
sketch7.addConstraint(Sketcher.Constraint("DistanceX", -1, 1, 2, 3, Q("5 in")))
sketch7.addConstraint(Sketcher.Constraint("DistanceX", -1, 1, 0, 3, Q("0.8 in")))
sketch7.addConstraint(Sketcher.Constraint("DistanceY", 0, 3, -1, 1, Q("2.2 in")))
sketch7.addConstraint(Sketcher.Constraint("DistanceY", 4, 3, -1, 1, Q("0.3 in")))
pad4 = body.newObject("PartDesign::Pad", "Pad003")
pad4.Profile = sketch7
pad4.Length = Q("0.2 in")

sketch8 = body.newObject("Sketcher::SketchObject", "Sketch007")
sketch8.AttachmentSupport = (doc.getObject("XZ_Plane"), [""])
sketch8.MapMode = "FlatFace"
sketch8.AttachmentOffset = App.Placement(V(0, 0, -0.2 * 25.4), App.Rotation())
sketch8.addGeometry(Part.Circle(V(6.35, -50.8, 0), V(0, 0, 1), 1.27), False)
sketch8.addGeometry(Part.Circle(V(6.35, -12.7, 0), V(0, 0, 1), 1.27), False)
sketch8.addGeometry(Part.Circle(V(140.97, -12.7, 0), V(0, 0, 1), 1.27), False)
sketch8.addGeometry(Part.Circle(V(140.97, -50.8, 0), V(0, 0, 1), 1.27), False)
sketch8.addConstraint(Sketcher.Constraint("Equal", 0, 1))
sketch8.addConstraint(Sketcher.Constraint("Equal", 1, 2))
sketch8.addConstraint(Sketcher.Constraint("Equal", 2, 3))
sketch8.addConstraint(Sketcher.Constraint("Horizontal", 1, 3, 2, 3))
sketch8.addConstraint(Sketcher.Constraint("Horizontal", 0, 3, 3, 3))
sketch8.addConstraint(Sketcher.Constraint("Vertical", 0, 3, 1, 3))
sketch8.addConstraint(Sketcher.Constraint("Vertical", 2, 3, 3, 3))
sketch8.addConstraint(Sketcher.Constraint("Diameter", 0, Q("0.1 in")))
sketch8.addConstraint(Sketcher.Constraint("DistanceY", 0, 3, -1, 1, Q("2 in")))
sketch8.addConstraint(Sketcher.Constraint("DistanceY", 1, 3, -1, 1, Q("0.5 in")))
sketch8.addConstraint(Sketcher.Constraint("DistanceX", 1, 3, 2, 3, Q("5.3 in")))
sketch8.addConstraint(Sketcher.Constraint("DistanceX", -1, 1, 0, 3, Q("0.25 in")))
pocket4 = body.newObject("PartDesign::Pocket", "Pocket003")
pocket4.Profile = sketch8
pocket4.Length = Q("0.1 in")
pocket4.Reversed = True

sketch9 = body.newObject("Sketcher::SketchObject", "Sketch008")
sketch9.AttachmentSupport = (doc.getObject("XZ_Plane"), [""])
sketch9.MapMode = "FlatFace"
sketch9.AttachmentOffset = App.Placement(V(0, 0, -0.1 * 25.4), App.Rotation())
sketch9.addGeometry(Part.Circle(V(20.32, -7.62, 0), V(0, 0, 1), 3.175), False)
sketch9.addGeometry(Part.Circle(V(127, -7.62, 0), V(0, 0, 1), 3.175), False)
sketch9.addGeometry(Part.Circle(V(20.32, -55.88, 0), V(0, 0, 1), 3.175), False)
sketch9.addGeometry(Part.Circle(V(127, -55.88, 0), V(0, 0, 1), 3.175), False)
sketch9.addConstraint(Sketcher.Constraint("Equal", 0, 1))
sketch9.addConstraint(Sketcher.Constraint("Equal", 1, 2))
sketch9.addConstraint(Sketcher.Constraint("Equal", 2, 3))
sketch9.addConstraint(Sketcher.Constraint("Horizontal", 0, 3, 1, 3))
sketch9.addConstraint(Sketcher.Constraint("Horizontal", 2, 3, 3, 3))
sketch9.addConstraint(Sketcher.Constraint("Vertical", 0, 3, 2, 3))
sketch9.addConstraint(Sketcher.Constraint("Vertical", 1, 3, 3, 3))
sketch9.addConstraint(Sketcher.Constraint("Diameter", 0, Q("0.25 in")))
sketch9.addConstraint(Sketcher.Constraint("DistanceX", -1, 1, 1, 3, Q("5 in")))
sketch9.addConstraint(Sketcher.Constraint("DistanceX", -1, 1, 0, 3, Q("0.8 in")))
sketch9.addConstraint(Sketcher.Constraint("DistanceY", 0, 3, -1, 1, Q("0.3 in")))
sketch9.addConstraint(Sketcher.Constraint("DistanceY", 2, 3, -1, 1, Q("2.2 in")))
pad5 = body.newObject("PartDesign::Pad", "Pad004")
pad5.Profile = sketch9
pad5.Length = Q("0.1 in")

doc.recompute()
